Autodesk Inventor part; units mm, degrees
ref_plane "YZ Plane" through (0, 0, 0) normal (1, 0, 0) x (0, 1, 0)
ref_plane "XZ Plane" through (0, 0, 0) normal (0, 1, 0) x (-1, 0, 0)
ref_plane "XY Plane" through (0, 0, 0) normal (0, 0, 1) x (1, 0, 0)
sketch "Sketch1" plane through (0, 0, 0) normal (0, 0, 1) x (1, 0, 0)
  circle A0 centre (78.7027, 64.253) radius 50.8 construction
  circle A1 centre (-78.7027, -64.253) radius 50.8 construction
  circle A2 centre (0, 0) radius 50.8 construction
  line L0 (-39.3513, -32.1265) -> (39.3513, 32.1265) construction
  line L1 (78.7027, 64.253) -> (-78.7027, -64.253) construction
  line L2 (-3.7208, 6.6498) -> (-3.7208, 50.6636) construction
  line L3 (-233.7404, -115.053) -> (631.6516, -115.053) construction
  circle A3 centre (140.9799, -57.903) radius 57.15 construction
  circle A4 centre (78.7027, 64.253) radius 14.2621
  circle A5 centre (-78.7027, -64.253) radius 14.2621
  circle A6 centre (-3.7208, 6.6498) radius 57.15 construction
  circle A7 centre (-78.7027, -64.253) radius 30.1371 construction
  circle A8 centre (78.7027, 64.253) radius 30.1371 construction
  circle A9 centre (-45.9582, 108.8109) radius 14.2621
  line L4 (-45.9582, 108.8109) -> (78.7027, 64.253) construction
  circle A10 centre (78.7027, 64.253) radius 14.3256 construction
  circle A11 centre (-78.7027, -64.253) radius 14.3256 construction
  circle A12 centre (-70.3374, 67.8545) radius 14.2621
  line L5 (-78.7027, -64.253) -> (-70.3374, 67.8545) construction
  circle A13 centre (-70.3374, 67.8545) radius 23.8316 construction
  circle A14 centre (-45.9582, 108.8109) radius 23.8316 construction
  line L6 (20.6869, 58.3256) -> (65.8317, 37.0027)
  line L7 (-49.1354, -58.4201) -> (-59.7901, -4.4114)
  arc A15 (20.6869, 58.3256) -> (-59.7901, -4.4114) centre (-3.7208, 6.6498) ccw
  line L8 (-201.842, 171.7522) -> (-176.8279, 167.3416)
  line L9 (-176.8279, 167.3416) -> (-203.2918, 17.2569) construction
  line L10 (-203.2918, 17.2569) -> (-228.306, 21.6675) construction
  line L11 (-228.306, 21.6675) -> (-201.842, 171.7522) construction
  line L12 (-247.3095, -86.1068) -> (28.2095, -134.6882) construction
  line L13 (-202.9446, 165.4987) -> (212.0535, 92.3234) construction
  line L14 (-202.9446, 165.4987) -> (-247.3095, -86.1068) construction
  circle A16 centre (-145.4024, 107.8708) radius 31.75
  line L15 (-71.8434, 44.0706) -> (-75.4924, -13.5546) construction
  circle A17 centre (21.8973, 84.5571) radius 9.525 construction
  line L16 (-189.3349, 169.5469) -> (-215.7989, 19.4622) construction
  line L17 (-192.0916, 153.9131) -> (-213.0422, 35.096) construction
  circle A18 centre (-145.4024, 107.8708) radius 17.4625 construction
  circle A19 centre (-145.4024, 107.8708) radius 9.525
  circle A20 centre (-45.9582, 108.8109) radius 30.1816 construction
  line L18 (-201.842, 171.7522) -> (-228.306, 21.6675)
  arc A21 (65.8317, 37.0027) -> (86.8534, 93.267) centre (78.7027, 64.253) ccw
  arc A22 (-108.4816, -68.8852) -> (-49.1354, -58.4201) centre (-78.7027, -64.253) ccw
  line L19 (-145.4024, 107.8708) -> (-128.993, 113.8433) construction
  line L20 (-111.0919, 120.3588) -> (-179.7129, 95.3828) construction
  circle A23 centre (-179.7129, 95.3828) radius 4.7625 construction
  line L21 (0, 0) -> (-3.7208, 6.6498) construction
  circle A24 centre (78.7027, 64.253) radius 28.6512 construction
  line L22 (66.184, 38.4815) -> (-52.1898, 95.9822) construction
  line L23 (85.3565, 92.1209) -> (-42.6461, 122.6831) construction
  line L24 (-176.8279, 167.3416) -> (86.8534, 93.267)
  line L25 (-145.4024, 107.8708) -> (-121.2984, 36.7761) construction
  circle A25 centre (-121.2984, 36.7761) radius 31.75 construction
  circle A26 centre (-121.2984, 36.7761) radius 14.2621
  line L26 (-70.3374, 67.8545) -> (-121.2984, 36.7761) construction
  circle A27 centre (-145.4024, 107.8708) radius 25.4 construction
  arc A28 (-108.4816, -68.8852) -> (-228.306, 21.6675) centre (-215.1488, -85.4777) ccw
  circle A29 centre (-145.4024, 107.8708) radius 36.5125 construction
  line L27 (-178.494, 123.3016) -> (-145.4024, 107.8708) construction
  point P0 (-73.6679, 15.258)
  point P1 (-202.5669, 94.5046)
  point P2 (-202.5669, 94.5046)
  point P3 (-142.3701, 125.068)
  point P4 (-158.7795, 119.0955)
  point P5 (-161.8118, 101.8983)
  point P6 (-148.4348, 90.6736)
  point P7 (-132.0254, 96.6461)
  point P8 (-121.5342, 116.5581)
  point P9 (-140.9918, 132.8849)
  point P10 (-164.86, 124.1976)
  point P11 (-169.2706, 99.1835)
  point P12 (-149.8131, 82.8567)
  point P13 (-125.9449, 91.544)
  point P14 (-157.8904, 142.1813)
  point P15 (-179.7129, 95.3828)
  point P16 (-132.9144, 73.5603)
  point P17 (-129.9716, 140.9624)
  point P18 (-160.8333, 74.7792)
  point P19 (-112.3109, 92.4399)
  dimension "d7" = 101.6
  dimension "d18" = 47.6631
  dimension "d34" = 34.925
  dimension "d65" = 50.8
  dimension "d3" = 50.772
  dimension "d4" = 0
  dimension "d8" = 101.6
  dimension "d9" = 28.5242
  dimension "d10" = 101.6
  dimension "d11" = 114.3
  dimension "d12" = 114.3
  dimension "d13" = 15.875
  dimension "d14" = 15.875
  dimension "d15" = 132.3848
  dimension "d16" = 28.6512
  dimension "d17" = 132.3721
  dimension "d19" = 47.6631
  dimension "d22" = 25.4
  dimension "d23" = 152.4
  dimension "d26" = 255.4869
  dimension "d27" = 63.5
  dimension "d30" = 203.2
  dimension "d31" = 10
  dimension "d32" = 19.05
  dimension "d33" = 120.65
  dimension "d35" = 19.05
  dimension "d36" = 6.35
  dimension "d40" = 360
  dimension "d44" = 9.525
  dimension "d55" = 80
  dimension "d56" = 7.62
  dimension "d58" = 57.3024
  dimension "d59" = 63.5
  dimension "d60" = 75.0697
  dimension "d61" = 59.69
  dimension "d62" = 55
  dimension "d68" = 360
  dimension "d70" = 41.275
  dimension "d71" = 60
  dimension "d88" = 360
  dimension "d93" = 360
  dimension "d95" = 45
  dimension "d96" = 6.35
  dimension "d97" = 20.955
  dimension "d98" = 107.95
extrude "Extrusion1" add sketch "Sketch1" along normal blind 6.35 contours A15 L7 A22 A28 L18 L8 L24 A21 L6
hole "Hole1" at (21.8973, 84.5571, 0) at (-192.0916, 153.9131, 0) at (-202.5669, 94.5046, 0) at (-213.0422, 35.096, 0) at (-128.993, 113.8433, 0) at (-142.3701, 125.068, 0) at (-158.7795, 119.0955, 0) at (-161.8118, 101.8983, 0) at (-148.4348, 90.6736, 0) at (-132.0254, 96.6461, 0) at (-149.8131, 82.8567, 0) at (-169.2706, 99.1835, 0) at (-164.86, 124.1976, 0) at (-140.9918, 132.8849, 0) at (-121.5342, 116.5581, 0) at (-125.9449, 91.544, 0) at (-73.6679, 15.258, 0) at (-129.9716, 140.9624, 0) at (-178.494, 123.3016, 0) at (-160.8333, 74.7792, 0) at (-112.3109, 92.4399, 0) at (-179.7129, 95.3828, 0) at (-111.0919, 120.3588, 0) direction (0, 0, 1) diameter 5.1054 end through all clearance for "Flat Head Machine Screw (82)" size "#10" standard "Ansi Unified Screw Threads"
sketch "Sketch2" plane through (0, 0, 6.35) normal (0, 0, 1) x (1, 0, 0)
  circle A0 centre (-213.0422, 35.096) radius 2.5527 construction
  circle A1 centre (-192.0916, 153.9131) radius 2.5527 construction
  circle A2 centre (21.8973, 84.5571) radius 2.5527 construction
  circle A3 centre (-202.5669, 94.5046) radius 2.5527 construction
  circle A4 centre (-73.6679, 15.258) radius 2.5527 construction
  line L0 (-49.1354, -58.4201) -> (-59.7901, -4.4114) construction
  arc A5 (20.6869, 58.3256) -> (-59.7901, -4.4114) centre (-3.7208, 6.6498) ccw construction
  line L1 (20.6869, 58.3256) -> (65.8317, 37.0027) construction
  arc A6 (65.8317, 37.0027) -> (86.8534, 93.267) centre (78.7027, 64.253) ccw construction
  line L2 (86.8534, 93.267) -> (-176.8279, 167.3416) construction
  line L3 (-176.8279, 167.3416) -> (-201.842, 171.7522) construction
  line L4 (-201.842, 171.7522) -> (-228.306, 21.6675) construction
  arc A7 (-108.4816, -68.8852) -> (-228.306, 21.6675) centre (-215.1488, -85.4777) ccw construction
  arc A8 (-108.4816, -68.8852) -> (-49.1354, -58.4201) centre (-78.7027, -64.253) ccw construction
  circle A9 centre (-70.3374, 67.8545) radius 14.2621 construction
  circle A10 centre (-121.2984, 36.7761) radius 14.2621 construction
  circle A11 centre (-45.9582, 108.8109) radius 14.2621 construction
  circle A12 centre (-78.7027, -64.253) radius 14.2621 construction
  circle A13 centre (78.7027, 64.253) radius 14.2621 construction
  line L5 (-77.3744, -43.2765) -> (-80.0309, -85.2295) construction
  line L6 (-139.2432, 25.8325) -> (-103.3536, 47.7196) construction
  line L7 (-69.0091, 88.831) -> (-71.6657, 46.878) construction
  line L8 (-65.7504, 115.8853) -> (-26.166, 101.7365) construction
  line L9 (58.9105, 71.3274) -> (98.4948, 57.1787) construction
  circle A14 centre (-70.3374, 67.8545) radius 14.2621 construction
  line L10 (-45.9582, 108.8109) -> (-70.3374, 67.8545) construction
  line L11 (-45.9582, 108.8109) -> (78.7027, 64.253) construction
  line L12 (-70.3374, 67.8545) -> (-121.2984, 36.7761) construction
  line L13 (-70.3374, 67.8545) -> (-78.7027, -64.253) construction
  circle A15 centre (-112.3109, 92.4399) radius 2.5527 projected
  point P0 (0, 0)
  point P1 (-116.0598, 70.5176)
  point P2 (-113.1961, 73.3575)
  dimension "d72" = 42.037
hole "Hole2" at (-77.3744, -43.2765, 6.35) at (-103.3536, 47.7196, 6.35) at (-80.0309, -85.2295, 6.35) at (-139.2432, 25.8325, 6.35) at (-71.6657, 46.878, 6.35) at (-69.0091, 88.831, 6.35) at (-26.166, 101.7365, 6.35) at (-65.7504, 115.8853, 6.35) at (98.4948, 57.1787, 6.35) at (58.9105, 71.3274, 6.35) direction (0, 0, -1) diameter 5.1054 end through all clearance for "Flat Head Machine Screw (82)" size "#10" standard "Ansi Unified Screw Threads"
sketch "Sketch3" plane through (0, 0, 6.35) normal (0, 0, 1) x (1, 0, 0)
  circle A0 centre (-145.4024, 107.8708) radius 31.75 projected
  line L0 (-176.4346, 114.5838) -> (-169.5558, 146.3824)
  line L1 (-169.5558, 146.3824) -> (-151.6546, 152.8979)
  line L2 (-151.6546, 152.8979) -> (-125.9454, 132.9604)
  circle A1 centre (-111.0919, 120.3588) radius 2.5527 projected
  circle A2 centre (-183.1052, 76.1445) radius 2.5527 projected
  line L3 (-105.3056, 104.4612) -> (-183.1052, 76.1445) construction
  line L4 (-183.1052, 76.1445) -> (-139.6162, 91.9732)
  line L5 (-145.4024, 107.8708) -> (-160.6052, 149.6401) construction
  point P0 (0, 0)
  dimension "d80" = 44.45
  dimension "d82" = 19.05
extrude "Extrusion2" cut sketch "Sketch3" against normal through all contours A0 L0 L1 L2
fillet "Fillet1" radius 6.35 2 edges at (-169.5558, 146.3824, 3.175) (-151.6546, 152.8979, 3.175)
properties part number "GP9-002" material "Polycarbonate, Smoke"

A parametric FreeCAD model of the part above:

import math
import FreeCAD as App
import Part
import Sketcher
Q = App.Units.Quantity


def edges_at(feature, points):
    """Names of the edges that pass closest to the given points."""
    edges = feature.Shape.Edges
    near = lambda p: min(range(len(edges)), key=lambda i: edges[i].distToShape(Part.Vertex(*p))[0])
    return sorted({f"Edge{near(p) + 1}" for p in points})

doc = App.newDocument("Part")
body = doc.addObject("PartDesign::Body", "Body")

# Sketch on XY plane
sketch1 = body.newObject("Sketcher::SketchObject", "Sketch")
sketch1.AttachmentSupport = (doc.getObject("XY_Plane"), [""])
sketch1.MapMode = "FlatFace"
sketch1.addGeometry(Part.ArcOfCircle(Part.Circle(App.Vector(-3.7208, 6.6498, 0), App.Vector(0, 0, 1), 57.15), math.radians(64.717528), math.radians(191.159855)), False)
sketch1.addGeometry(Part.LineSegment(App.Vector(20.6869, 58.3256, 0), App.Vector(65.8317, 37.0027, 0)), False)
sketch1.addGeometry(Part.ArcOfCircle(Part.Circle(App.Vector(78.7027, 64.253, 0), App.Vector(0, 0, 1), 30.1371), math.radians(-115.282541), math.radians(74.308726)), False)
sketch1.addGeometry(Part.LineSegment(App.Vector(86.8534, 93.267, 0), App.Vector(-176.8279, 167.3416, 0)), False)
sketch1.addGeometry(Part.LineSegment(App.Vector(-176.8279, 167.3416, 0), App.Vector(-201.842, 171.7522, 0)), False)
sketch1.addGeometry(Part.LineSegment(App.Vector(-201.842, 171.7522, 0), App.Vector(-228.306, 21.6675, 0)), False)
sketch1.addGeometry(Part.ArcOfCircle(Part.Circle(App.Vector(-215.1488, -85.4777, 0), App.Vector(0, 0, 1), 107.950001), math.radians(8.841722), math.radians(97.00075)), False)
sketch1.addGeometry(Part.ArcOfCircle(Part.Circle(App.Vector(-78.7027, -64.253, 0), App.Vector(0, 0, 1), 30.1371), math.radians(-171.158323), math.radians(11.159748)), False)
sketch1.addGeometry(Part.LineSegment(App.Vector(-49.1354, -58.4201, 0), App.Vector(-59.7901, -4.4114, 0)), False)
sketch1.addGeometry(Part.Circle(App.Vector(-78.7027, -64.253, 0), App.Vector(0, 0, 1), 14.2621), False)
sketch1.addGeometry(Part.Circle(App.Vector(-121.2984, 36.7761, 0), App.Vector(0, 0, 1), 14.2621), False)
sketch1.addGeometry(Part.Circle(App.Vector(-70.3374, 67.8545, 0), App.Vector(0, 0, 1), 14.2621), False)
sketch1.addGeometry(Part.Circle(App.Vector(-145.4024, 107.8708, 0), App.Vector(0, 0, 1), 31.75), False)
sketch1.addGeometry(Part.Circle(App.Vector(78.7027, 64.253, 0), App.Vector(0, 0, 1), 14.2621), False)
sketch1.addGeometry(Part.Circle(App.Vector(-45.9582, 108.8109, 0), App.Vector(0, 0, 1), 14.2621), False)
sketch1.addConstraint(Sketcher.Constraint("Coincident", 0, 1, 1, 1))
sketch1.addConstraint(Sketcher.Constraint("Coincident", 1, 2, 2, 1))
sketch1.addConstraint(Sketcher.Constraint("Coincident", 2, 2, 3, 1))
sketch1.addConstraint(Sketcher.Constraint("Coincident", 3, 2, 4, 1))
sketch1.addConstraint(Sketcher.Constraint("Coincident", 4, 2, 5, 1))
sketch1.addConstraint(Sketcher.Constraint("Coincident", 5, 2, 6, 2))
sketch1.addConstraint(Sketcher.Constraint("Coincident", 6, 1, 7, 1))
sketch1.addConstraint(Sketcher.Constraint("Coincident", 7, 2, 8, 1))
sketch1.addConstraint(Sketcher.Constraint("Coincident", 8, 2, 0, 2))
sketch1.addConstraint(Sketcher.Constraint("Coincident", 9, 3, 7, 3))
sketch1.addConstraint(Sketcher.Constraint("Coincident", 13, 3, 2, 3))
sketch1.addConstraint(Sketcher.Constraint("Diameter", 12, Q("2.5 in")))
sketch1.addConstraint(Sketcher.Constraint("Radius", 0, Q("2.25 in")))
sketch1.addConstraint(Sketcher.Constraint("Radius", 6, Q("4.25 in")))
sketch1.addConstraint(Sketcher.Constraint("Distance", 4, Q("1 in")))
sketch1.addConstraint(Sketcher.Constraint("Distance", 5, Q("6 in")))
sketch1.addConstraint(Sketcher.Constraint("Diameter", 9, Q("1.123 in")))
sketch1.addConstraint(Sketcher.Constraint("Diameter", 10, Q("1.123 in")))
sketch1.addConstraint(Sketcher.Constraint("Diameter", 11, Q("1.123 in")))
sketch1.addConstraint(Sketcher.Constraint("Diameter", 13, Q("1.123 in")))
sketch1.addConstraint(Sketcher.Constraint("Diameter", 14, Q("1.123 in")))
sketch1.addConstraint(Sketcher.Constraint("DistanceY", 7, 2, -1, 1, Q("2.3 in")))
sketch1.addConstraint(Sketcher.Constraint("Radius", 2, Q("1.1865 in")))
sketch1.addConstraint(Sketcher.Constraint("Radius", 7, Q("1.1865 in")))
sketch1.addConstraint(Sketcher.Constraint("Distance", 3, Q("10.783 in")))
sketch1.addConstraint(Sketcher.Constraint("DistanceX", 10, 3, 7, 3, Q("1.677 in")))
sketch1.addConstraint(Sketcher.Constraint("DistanceY", 10, 3, 12, 3, Q("2.799 in")))
sketch1.addConstraint(Sketcher.Constraint("DistanceY", 12, 3, 14, 3, Q("0.037 in")))
sketch1.addConstraint(Sketcher.Constraint("DistanceY", 0, 3, 1, 2, Q("1.195 in")))
sketch1.addConstraint(Sketcher.Constraint("DistanceX", 4, 2, 10, 3, Q("3.171 in")))
sketch1.addConstraint(Sketcher.Constraint("DistanceY", 14, 3, 4, 2, Q("2.478 in")))
sketch1.addConstraint(Sketcher.Constraint("DistanceX", 5, 2, 6, 3, Q("0.518 in")))
sketch1.addConstraint(Sketcher.Constraint("DistanceY", 6, 1, 7, 2, Q("0.412 in")))
sketch1.addConstraint(Sketcher.Constraint("Distance", 8, Q("2.1673 in")))
sketch1.addConstraint(Sketcher.Constraint("DistanceX", 0, 3, -1, 1, Q("0.1465 in")))
sketch1.addConstraint(Sketcher.Constraint("DistanceY", -1, 1, 0, 3, Q("0.2618 in")))
sketch1.addConstraint(Sketcher.Constraint("DistanceX", 11, 3, -1, 1, Q("2.7692 in")))
sketch1.addConstraint(Sketcher.Constraint("DistanceX", 12, 3, -1, 1, Q("5.7245 in")))
sketch1.addConstraint(Sketcher.Constraint("DistanceY", -1, 1, 14, 3, Q("4.2839 in")))
sketch1.addConstraint(Sketcher.Constraint("DistanceX", -1, 1, 1, 2, Q("2.5918 in")))
sketch1.addConstraint(Sketcher.Constraint("DistanceY", 6, 3, 2, 3, Q("5.8949 in")))
sketch1.addConstraint(Sketcher.Constraint("DistanceX", 6, 3, 7, 3, Q("5.3719 in")))
sketch1.addConstraint(Sketcher.Constraint("DistanceY", 2, 3, 11, 3, Q("0.1418 in")))
sketch1.addConstraint(Sketcher.Constraint("DistanceX", 11, 3, 14, 3, Q("0.9598 in")))
sketch1.addConstraint(Sketcher.Constraint("DistanceY", 0, 1, 14, 3, Q("1.9876 in")))
sketch1.addConstraint(Sketcher.Constraint("DistanceX", 2, 3, 2, 2, Q("0.3209 in")))
sketch1.addConstraint(Sketcher.Constraint("DistanceX", 3, 2, 10, 3, Q("2.1862 in")))
pad1 = body.newObject("PartDesign::Pad", "Pad")
pad1.Profile = sketch1
pad1.Length = Q("0.25 in")

# Sketch on XY plane
sketch2 = body.newObject("Sketcher::SketchObject", "Sketch001")
sketch2.AttachmentSupport = (doc.getObject("XY_Plane"), [""])
sketch2.MapMode = "FlatFace"
sketch2.addGeometry(Part.Circle(App.Vector(21.9, 84.6, 0), App.Vector(0, 0, 1), 2.6), False)
sketch2.addGeometry(Part.Circle(App.Vector(-192.1, 153.9, 0), App.Vector(0, 0, 1), 2.6), False)
sketch2.addGeometry(Part.Circle(App.Vector(-202.6, 94.5, 0), App.Vector(0, 0, 1), 2.6), False)
sketch2.addGeometry(Part.Circle(App.Vector(-213, 35.1, 0), App.Vector(0, 0, 1), 2.6), False)
sketch2.addGeometry(Part.Circle(App.Vector(-129, 113.8, 0), App.Vector(0, 0, 1), 2.6), False)
sketch2.addGeometry(Part.Circle(App.Vector(-142.4, 125.1, 0), App.Vector(0, 0, 1), 2.6), False)
sketch2.addGeometry(Part.Circle(App.Vector(-158.8, 119.1, 0), App.Vector(0, 0, 1), 2.6), False)
sketch2.addGeometry(Part.Circle(App.Vector(-161.8, 101.9, 0), App.Vector(0, 0, 1), 2.6), False)
sketch2.addGeometry(Part.Circle(App.Vector(-148.4, 90.7, 0), App.Vector(0, 0, 1), 2.6), False)
sketch2.addGeometry(Part.Circle(App.Vector(-132, 96.6, 0), App.Vector(0, 0, 1), 2.6), False)
sketch2.addGeometry(Part.Circle(App.Vector(-149.8, 82.9, 0), App.Vector(0, 0, 1), 2.6), False)
sketch2.addGeometry(Part.Circle(App.Vector(-169.3, 99.2, 0), App.Vector(0, 0, 1), 2.6), False)
sketch2.addGeometry(Part.Circle(App.Vector(-164.9, 124.2, 0), App.Vector(0, 0, 1), 2.6), False)
sketch2.addGeometry(Part.Circle(App.Vector(-141, 132.9, 0), App.Vector(0, 0, 1), 2.6), False)
sketch2.addGeometry(Part.Circle(App.Vector(-121.5, 116.6, 0), App.Vector(0, 0, 1), 2.6), False)
sketch2.addGeometry(Part.Circle(App.Vector(-125.9, 91.5, 0), App.Vector(0, 0, 1), 2.6), False)
sketch2.addGeometry(Part.Circle(App.Vector(-73.7, 15.3, 0), App.Vector(0, 0, 1), 2.6), False)
sketch2.addGeometry(Part.Circle(App.Vector(-130, 141, 0), App.Vector(0, 0, 1), 2.6), False)
sketch2.addGeometry(Part.Circle(App.Vector(-178.5, 123.3, 0), App.Vector(0, 0, 1), 2.6), False)
sketch2.addGeometry(Part.Circle(App.Vector(-160.8, 74.8, 0), App.Vector(0, 0, 1), 2.6), False)
sketch2.addGeometry(Part.Circle(App.Vector(-112.3, 92.4, 0), App.Vector(0, 0, 1), 2.6), False)
sketch2.addGeometry(Part.Circle(App.Vector(-179.7, 95.4, 0), App.Vector(0, 0, 1), 2.6), False)
sketch2.addGeometry(Part.Circle(App.Vector(-111.1, 120.4, 0), App.Vector(0, 0, 1), 2.6), False)
sketch2.addConstraint(Sketcher.Constraint("Equal", 0, 1))
sketch2.addConstraint(Sketcher.Constraint("Equal", 1, 2))
sketch2.addConstraint(Sketcher.Constraint("Equal", 2, 3))
sketch2.addConstraint(Sketcher.Constraint("Equal", 3, 4))
sketch2.addConstraint(Sketcher.Constraint("Equal", 4, 5))
sketch2.addConstraint(Sketcher.Constraint("Equal", 5, 6))
sketch2.addConstraint(Sketcher.Constraint("Equal", 6, 7))
sketch2.addConstraint(Sketcher.Constraint("Equal", 7, 8))
sketch2.addConstraint(Sketcher.Constraint("Equal", 8, 9))
sketch2.addConstraint(Sketcher.Constraint("Equal", 9, 10))
sketch2.addConstraint(Sketcher.Constraint("Equal", 10, 11))
sketch2.addConstraint(Sketcher.Constraint("Equal", 11, 12))
sketch2.addConstraint(Sketcher.Constraint("Equal", 12, 13))
sketch2.addConstraint(Sketcher.Constraint("Equal", 13, 14))
sketch2.addConstraint(Sketcher.Constraint("Equal", 14, 15))
sketch2.addConstraint(Sketcher.Constraint("Equal", 15, 16))
sketch2.addConstraint(Sketcher.Constraint("Equal", 16, 17))
sketch2.addConstraint(Sketcher.Constraint("Equal", 17, 18))
sketch2.addConstraint(Sketcher.Constraint("Equal", 18, 19))
sketch2.addConstraint(Sketcher.Constraint("Equal", 19, 20))
sketch2.addConstraint(Sketcher.Constraint("Equal", 20, 21))
sketch2.addConstraint(Sketcher.Constraint("Equal", 21, 22))
sketch2.addConstraint(Sketcher.Constraint("Diameter", 0, Q("0.201 in")))
sketch2.addConstraint(Sketcher.Constraint("DistanceX", 12, 3, 7, 3, Q("0.12 in")))
sketch2.addConstraint(Sketcher.Constraint("DistanceX", 4, 3, 15, 3, Q("0.12 in")))
sketch2.addConstraint(Sketcher.Constraint("DistanceX", 17, 3, -1, 1, Q("5.117 in")))
sketch2.addConstraint(Sketcher.Constraint("DistanceY", 0, 3, 4, 3, Q("1.153 in")))
sketch2.addConstraint(Sketcher.Constraint("DistanceX", 6, 3, 10, 3, Q("0.353 in")))
sketch2.addConstraint(Sketcher.Constraint("DistanceY", 13, 3, 17, 3, Q("0.318 in")))
sketch2.addConstraint(Sketcher.Constraint("DistanceY", 19, 3, 10, 3, Q("0.318 in")))
sketch2.addConstraint(Sketcher.Constraint("DistanceX", 21, 3, 18, 3, Q("0.048 in")))
sketch2.addConstraint(Sketcher.Constraint("DistanceX", 20, 3, 22, 3, Q("0.048 in")))
sketch2.addConstraint(Sketcher.Constraint("DistanceX", -1, 1, 0, 3, Q("0.8621 in")))
sketch2.addConstraint(Sketcher.Constraint("DistanceX", 3, 3, -1, 1, Q("8.3875 in")))
sketch2.addConstraint(Sketcher.Constraint("DistanceY", -1, 1, 6, 3, Q("4.6888 in")))
sketch2.addConstraint(Sketcher.Constraint("DistanceX", 8, 3, -1, 1, Q("5.8439 in")))
sketch2.addConstraint(Sketcher.Constraint("DistanceX", 11, 3, -1, 1, Q("6.6642 in")))
sketch2.addConstraint(Sketcher.Constraint("DistanceY", -1, 1, 13, 3, Q("5.2317 in")))
sketch2.addConstraint(Sketcher.Constraint("DistanceX", 14, 3, -1, 1, Q("4.7848 in")))
sketch2.addConstraint(Sketcher.Constraint("DistanceY", -1, 1, 14, 3, Q("4.5889 in")))
sketch2.addConstraint(Sketcher.Constraint("DistanceY", -1, 1, 15, 3, Q("3.6041 in")))
sketch2.addConstraint(Sketcher.Constraint("DistanceX", 16, 3, -1, 1, Q("2.9003 in")))
sketch2.addConstraint(Sketcher.Constraint("DistanceY", -1, 1, 16, 3, Q("0.6007 in")))
sketch2.addConstraint(Sketcher.Constraint("DistanceY", -1, 1, 18, 3, Q("4.8544 in")))
sketch2.addConstraint(Sketcher.Constraint("DistanceX", 20, 3, -1, 1, Q("4.4217 in")))
sketch2.addConstraint(Sketcher.Constraint("DistanceX", 21, 3, -1, 1, Q("7.0753 in")))
sketch2.addConstraint(Sketcher.Constraint("DistanceX", 1, 3, 4, 3, Q("2.4842 in")))
sketch2.addConstraint(Sketcher.Constraint("DistanceX", 2, 3, 4, 3, Q("2.8966 in")))
sketch2.addConstraint(Sketcher.Constraint("DistanceY", 3, 3, 5, 3, Q("3.5422 in")))
sketch2.addConstraint(Sketcher.Constraint("DistanceX", 6, 3, 4, 3, Q("1.1727 in")))
sketch2.addConstraint(Sketcher.Constraint("DistanceY", 7, 3, 5, 3, Q("0.9122 in")))
sketch2.addConstraint(Sketcher.Constraint("DistanceY", 2, 3, 7, 3, Q("0.2911 in")))
sketch2.addConstraint(Sketcher.Constraint("DistanceY", 8, 3, 4, 3, Q("0.9122 in")))
sketch2.addConstraint(Sketcher.Constraint("DistanceY", 8, 3, 5, 3, Q("1.3541 in")))
sketch2.addConstraint(Sketcher.Constraint("DistanceX", 7, 3, 9, 3, Q("1.1727 in")))
sketch2.addConstraint(Sketcher.Constraint("DistanceX", 6, 3, 9, 3, Q("1.0533 in")))
sketch2.addConstraint(Sketcher.Constraint("DistanceY", 10, 3, 9, 3, Q("0.5429 in")))
sketch2.addConstraint(Sketcher.Constraint("DistanceY", 2, 3, 11, 3, Q("0.1842 in")))
sketch2.addConstraint(Sketcher.Constraint("DistanceY", 11, 3, 12, 3, Q("0.9848 in")))
sketch2.addConstraint(Sketcher.Constraint("DistanceX", 6, 3, 13, 3, Q("0.7003 in")))
sketch2.addConstraint(Sketcher.Constraint("DistanceX", 5, 3, 14, 3, Q("0.8203 in")))
sketch2.addConstraint(Sketcher.Constraint("DistanceY", 19, 3, 11, 3, Q("0.9608 in")))
sketch2.addConstraint(Sketcher.Constraint("DistanceY", 20, 3, 9, 3, Q("0.1656 in")))
sketch2.addConstraint(Sketcher.Constraint("DistanceX", 21, 3, 19, 3, Q("0.7433 in")))
sketch2.addConstraint(Sketcher.Constraint("DistanceY", 22, 3, 5, 3, Q("0.1854 in")))
sketch2.addConstraint(Sketcher.Constraint("DistanceY", -1, 1, 0, 3, 84.557))
sketch2.addConstraint(Sketcher.Constraint("DistanceX", 1, 3, -1, 1, 192.0916))
sketch2.addConstraint(Sketcher.Constraint("DistanceY", -1, 1, 1, 3, 153.913))
sketch2.addConstraint(Sketcher.Constraint("DistanceY", -1, 1, 21, 3, 95.3828))
doc.recompute()
hole = body.newObject("PartDesign::Hole", "Hole")
hole.Profile = sketch2
hole.ThreadType = "None"
hole.Diameter = Q("0.201 in")
hole.DepthType = "ThroughAll"
hole.Reversed = True

# Sketch on XY plane
sketch3 = body.newObject("Sketcher::SketchObject", "Sketch002")
sketch3.AttachmentSupport = (doc.getObject("XY_Plane"), [""])
sketch3.MapMode = "FlatFace"
sketch3.AttachmentOffset = App.Placement(App.Vector(0, 0, 0.25 * 25.4), App.Rotation())
sketch3.addGeometry(Part.Circle(App.Vector(-77.4, -43.3, 0), App.Vector(0, 0, 1), 2.6), False)
sketch3.addGeometry(Part.Circle(App.Vector(-103.4, 47.7, 0), App.Vector(0, 0, 1), 2.6), False)
sketch3.addGeometry(Part.Circle(App.Vector(-80, -85.2, 0), App.Vector(0, 0, 1), 2.6), False)
sketch3.addGeometry(Part.Circle(App.Vector(-139.2, 25.8, 0), App.Vector(0, 0, 1), 2.6), False)
sketch3.addGeometry(Part.Circle(App.Vector(-71.7, 46.9, 0), App.Vector(0, 0, 1), 2.6), False)
sketch3.addGeometry(Part.Circle(App.Vector(-69, 88.8, 0), App.Vector(0, 0, 1), 2.6), False)
sketch3.addGeometry(Part.Circle(App.Vector(-26.2, 101.7, 0), App.Vector(0, 0, 1), 2.6), False)
sketch3.addGeometry(Part.Circle(App.Vector(-65.8, 115.9, 0), App.Vector(0, 0, 1), 2.6), False)
sketch3.addGeometry(Part.Circle(App.Vector(98.5, 57.2, 0), App.Vector(0, 0, 1), 2.6), False)
sketch3.addGeometry(Part.Circle(App.Vector(58.9, 71.3, 0), App.Vector(0, 0, 1), 2.6), False)
sketch3.addConstraint(Sketcher.Constraint("Equal", 0, 1))
sketch3.addConstraint(Sketcher.Constraint("Equal", 1, 2))
sketch3.addConstraint(Sketcher.Constraint("Equal", 2, 3))
sketch3.addConstraint(Sketcher.Constraint("Equal", 3, 4))
sketch3.addConstraint(Sketcher.Constraint("Equal", 4, 5))
sketch3.addConstraint(Sketcher.Constraint("Equal", 5, 6))
sketch3.addConstraint(Sketcher.Constraint("Equal", 6, 7))
sketch3.addConstraint(Sketcher.Constraint("Equal", 7, 8))
sketch3.addConstraint(Sketcher.Constraint("Equal", 8, 9))
sketch3.addConstraint(Sketcher.Constraint("Diameter", 0, Q("0.201 in")))
sketch3.addConstraint(Sketcher.Constraint("DistanceY", 0, 3, -1, 1, Q("1.7038 in")))
sketch3.addConstraint(Sketcher.Constraint("DistanceY", 2, 3, -1, 1, Q("3.3555 in")))
sketch3.addConstraint(Sketcher.Constraint("DistanceY", -1, 1, 4, 3, Q("1.8456 in")))
sketch3.addConstraint(Sketcher.Constraint("DistanceX", 5, 3, -1, 1, Q("2.7169 in")))
sketch3.addConstraint(Sketcher.Constraint("DistanceX", 7, 3, -1, 1, Q("2.5886 in")))
sketch3.addConstraint(Sketcher.Constraint("DistanceX", -1, 1, 9, 3, Q("2.3193 in")))
sketch3.addConstraint(Sketcher.Constraint("DistanceX", 1, 3, 0, 3, Q("1.0228 in")))
sketch3.addConstraint(Sketcher.Constraint("DistanceY", 3, 3, 1, 3, Q("0.8617 in")))
sketch3.addConstraint(Sketcher.Constraint("DistanceX", 3, 3, 2, 3, Q("2.3312 in")))
sketch3.addConstraint(Sketcher.Constraint("DistanceX", 4, 3, 5, 3, Q("0.1046 in")))
sketch3.addConstraint(Sketcher.Constraint("DistanceY", 4, 3, 5, 3, Q("1.6517 in")))
sketch3.addConstraint(Sketcher.Constraint("DistanceY", 5, 3, 6, 3, Q("0.5081 in")))
sketch3.addConstraint(Sketcher.Constraint("DistanceY", 1, 3, 7, 3, Q("2.6837 in")))
sketch3.addConstraint(Sketcher.Constraint("DistanceX", 6, 3, 8, 3, Q("4.9079 in")))
sketch3.addConstraint(Sketcher.Constraint("DistanceY", 1, 3, 8, 3, Q("0.3724 in")))
sketch3.addConstraint(Sketcher.Constraint("DistanceY", 9, 3, 6, 3, Q("1.1972 in")))
sketch3.addConstraint(Sketcher.Constraint("DistanceX", 0, 3, -1, 1, 77.3744))
sketch3.addConstraint(Sketcher.Constraint("DistanceY", -1, 1, 1, 3, 47.7196))
sketch3.addConstraint(Sketcher.Constraint("DistanceX", 2, 3, -1, 1, 80.031))
sketch3.addConstraint(Sketcher.Constraint("DistanceX", 6, 3, -1, 1, 26.166))
doc.recompute()
hole2 = body.newObject("PartDesign::Hole", "Hole001")
hole2.Profile = sketch3
hole2.ThreadType = "None"
hole2.Diameter = Q("0.201 in")
hole2.DepthType = "ThroughAll"

# Sketch on XY plane
sketch4 = body.newObject("Sketcher::SketchObject", "Sketch003")
sketch4.AttachmentSupport = (doc.getObject("XY_Plane"), [""])
sketch4.MapMode = "FlatFace"
sketch4.AttachmentOffset = App.Placement(App.Vector(0, 0, 0.25 * 25.4), App.Rotation())
sketch4.addGeometry(Part.ArcOfCircle(Part.Circle(App.Vector(-145, 108, 0), App.Vector(0, 0, 1), 32), math.radians(52), math.radians(168)), False)
sketch4.addGeometry(Part.LineSegment(App.Vector(-126, 133, 0), App.Vector(-152, 153, 0)), False)
sketch4.addGeometry(Part.LineSegment(App.Vector(-152, 153, 0), App.Vector(-170, 146, 0)), False)
sketch4.addGeometry(Part.LineSegment(App.Vector(-170, 146, 0), App.Vector(-176, 115, 0)), False)
sketch4.addConstraint(Sketcher.Constraint("Tangent", 0, 1, 1, 1))
sketch4.addConstraint(Sketcher.Constraint("Coincident", 1, 2, 2, 1))
sketch4.addConstraint(Sketcher.Constraint("Coincident", 2, 2, 3, 1))
sketch4.addConstraint(Sketcher.Constraint("Tangent", 3, 2, 0, 2))
sketch4.addConstraint(Sketcher.Constraint("Equal", 1, 3))
sketch4.addConstraint(Sketcher.Constraint("Distance", 2, Q("0.75 in")))
sketch4.addConstraint(Sketcher.Constraint("Radius", 0, Q("1.25 in")))
sketch4.addConstraint(Sketcher.Constraint("Angle", 2, Q("-160 deg")))
sketch4.addConstraint(Sketcher.Constraint("DistanceX", 0, 3, -1, 1, Q("5.7245 in")))
sketch4.addConstraint(Sketcher.Constraint("DistanceY", -1, 1, 1, 2, Q("6.0196 in")))
sketch4.addConstraint(Sketcher.Constraint("DistanceY", 0, 3, 2, 2, Q("1.5162 in")))
pocket1 = body.newObject("PartDesign::Pocket", "Pocket")
pocket1.Profile = sketch4
pocket1.Type = "ThroughAll"
doc.recompute()

fillet = body.newObject("PartDesign::Fillet", "Fillet")
fillet.Base = (pocket1, edges_at(pocket1, [(-169.556, 146.382, 3.175), (-151.655, 152.898, 3.175)]))
fillet.Radius = Q("0.25 in")

doc.recompute()
